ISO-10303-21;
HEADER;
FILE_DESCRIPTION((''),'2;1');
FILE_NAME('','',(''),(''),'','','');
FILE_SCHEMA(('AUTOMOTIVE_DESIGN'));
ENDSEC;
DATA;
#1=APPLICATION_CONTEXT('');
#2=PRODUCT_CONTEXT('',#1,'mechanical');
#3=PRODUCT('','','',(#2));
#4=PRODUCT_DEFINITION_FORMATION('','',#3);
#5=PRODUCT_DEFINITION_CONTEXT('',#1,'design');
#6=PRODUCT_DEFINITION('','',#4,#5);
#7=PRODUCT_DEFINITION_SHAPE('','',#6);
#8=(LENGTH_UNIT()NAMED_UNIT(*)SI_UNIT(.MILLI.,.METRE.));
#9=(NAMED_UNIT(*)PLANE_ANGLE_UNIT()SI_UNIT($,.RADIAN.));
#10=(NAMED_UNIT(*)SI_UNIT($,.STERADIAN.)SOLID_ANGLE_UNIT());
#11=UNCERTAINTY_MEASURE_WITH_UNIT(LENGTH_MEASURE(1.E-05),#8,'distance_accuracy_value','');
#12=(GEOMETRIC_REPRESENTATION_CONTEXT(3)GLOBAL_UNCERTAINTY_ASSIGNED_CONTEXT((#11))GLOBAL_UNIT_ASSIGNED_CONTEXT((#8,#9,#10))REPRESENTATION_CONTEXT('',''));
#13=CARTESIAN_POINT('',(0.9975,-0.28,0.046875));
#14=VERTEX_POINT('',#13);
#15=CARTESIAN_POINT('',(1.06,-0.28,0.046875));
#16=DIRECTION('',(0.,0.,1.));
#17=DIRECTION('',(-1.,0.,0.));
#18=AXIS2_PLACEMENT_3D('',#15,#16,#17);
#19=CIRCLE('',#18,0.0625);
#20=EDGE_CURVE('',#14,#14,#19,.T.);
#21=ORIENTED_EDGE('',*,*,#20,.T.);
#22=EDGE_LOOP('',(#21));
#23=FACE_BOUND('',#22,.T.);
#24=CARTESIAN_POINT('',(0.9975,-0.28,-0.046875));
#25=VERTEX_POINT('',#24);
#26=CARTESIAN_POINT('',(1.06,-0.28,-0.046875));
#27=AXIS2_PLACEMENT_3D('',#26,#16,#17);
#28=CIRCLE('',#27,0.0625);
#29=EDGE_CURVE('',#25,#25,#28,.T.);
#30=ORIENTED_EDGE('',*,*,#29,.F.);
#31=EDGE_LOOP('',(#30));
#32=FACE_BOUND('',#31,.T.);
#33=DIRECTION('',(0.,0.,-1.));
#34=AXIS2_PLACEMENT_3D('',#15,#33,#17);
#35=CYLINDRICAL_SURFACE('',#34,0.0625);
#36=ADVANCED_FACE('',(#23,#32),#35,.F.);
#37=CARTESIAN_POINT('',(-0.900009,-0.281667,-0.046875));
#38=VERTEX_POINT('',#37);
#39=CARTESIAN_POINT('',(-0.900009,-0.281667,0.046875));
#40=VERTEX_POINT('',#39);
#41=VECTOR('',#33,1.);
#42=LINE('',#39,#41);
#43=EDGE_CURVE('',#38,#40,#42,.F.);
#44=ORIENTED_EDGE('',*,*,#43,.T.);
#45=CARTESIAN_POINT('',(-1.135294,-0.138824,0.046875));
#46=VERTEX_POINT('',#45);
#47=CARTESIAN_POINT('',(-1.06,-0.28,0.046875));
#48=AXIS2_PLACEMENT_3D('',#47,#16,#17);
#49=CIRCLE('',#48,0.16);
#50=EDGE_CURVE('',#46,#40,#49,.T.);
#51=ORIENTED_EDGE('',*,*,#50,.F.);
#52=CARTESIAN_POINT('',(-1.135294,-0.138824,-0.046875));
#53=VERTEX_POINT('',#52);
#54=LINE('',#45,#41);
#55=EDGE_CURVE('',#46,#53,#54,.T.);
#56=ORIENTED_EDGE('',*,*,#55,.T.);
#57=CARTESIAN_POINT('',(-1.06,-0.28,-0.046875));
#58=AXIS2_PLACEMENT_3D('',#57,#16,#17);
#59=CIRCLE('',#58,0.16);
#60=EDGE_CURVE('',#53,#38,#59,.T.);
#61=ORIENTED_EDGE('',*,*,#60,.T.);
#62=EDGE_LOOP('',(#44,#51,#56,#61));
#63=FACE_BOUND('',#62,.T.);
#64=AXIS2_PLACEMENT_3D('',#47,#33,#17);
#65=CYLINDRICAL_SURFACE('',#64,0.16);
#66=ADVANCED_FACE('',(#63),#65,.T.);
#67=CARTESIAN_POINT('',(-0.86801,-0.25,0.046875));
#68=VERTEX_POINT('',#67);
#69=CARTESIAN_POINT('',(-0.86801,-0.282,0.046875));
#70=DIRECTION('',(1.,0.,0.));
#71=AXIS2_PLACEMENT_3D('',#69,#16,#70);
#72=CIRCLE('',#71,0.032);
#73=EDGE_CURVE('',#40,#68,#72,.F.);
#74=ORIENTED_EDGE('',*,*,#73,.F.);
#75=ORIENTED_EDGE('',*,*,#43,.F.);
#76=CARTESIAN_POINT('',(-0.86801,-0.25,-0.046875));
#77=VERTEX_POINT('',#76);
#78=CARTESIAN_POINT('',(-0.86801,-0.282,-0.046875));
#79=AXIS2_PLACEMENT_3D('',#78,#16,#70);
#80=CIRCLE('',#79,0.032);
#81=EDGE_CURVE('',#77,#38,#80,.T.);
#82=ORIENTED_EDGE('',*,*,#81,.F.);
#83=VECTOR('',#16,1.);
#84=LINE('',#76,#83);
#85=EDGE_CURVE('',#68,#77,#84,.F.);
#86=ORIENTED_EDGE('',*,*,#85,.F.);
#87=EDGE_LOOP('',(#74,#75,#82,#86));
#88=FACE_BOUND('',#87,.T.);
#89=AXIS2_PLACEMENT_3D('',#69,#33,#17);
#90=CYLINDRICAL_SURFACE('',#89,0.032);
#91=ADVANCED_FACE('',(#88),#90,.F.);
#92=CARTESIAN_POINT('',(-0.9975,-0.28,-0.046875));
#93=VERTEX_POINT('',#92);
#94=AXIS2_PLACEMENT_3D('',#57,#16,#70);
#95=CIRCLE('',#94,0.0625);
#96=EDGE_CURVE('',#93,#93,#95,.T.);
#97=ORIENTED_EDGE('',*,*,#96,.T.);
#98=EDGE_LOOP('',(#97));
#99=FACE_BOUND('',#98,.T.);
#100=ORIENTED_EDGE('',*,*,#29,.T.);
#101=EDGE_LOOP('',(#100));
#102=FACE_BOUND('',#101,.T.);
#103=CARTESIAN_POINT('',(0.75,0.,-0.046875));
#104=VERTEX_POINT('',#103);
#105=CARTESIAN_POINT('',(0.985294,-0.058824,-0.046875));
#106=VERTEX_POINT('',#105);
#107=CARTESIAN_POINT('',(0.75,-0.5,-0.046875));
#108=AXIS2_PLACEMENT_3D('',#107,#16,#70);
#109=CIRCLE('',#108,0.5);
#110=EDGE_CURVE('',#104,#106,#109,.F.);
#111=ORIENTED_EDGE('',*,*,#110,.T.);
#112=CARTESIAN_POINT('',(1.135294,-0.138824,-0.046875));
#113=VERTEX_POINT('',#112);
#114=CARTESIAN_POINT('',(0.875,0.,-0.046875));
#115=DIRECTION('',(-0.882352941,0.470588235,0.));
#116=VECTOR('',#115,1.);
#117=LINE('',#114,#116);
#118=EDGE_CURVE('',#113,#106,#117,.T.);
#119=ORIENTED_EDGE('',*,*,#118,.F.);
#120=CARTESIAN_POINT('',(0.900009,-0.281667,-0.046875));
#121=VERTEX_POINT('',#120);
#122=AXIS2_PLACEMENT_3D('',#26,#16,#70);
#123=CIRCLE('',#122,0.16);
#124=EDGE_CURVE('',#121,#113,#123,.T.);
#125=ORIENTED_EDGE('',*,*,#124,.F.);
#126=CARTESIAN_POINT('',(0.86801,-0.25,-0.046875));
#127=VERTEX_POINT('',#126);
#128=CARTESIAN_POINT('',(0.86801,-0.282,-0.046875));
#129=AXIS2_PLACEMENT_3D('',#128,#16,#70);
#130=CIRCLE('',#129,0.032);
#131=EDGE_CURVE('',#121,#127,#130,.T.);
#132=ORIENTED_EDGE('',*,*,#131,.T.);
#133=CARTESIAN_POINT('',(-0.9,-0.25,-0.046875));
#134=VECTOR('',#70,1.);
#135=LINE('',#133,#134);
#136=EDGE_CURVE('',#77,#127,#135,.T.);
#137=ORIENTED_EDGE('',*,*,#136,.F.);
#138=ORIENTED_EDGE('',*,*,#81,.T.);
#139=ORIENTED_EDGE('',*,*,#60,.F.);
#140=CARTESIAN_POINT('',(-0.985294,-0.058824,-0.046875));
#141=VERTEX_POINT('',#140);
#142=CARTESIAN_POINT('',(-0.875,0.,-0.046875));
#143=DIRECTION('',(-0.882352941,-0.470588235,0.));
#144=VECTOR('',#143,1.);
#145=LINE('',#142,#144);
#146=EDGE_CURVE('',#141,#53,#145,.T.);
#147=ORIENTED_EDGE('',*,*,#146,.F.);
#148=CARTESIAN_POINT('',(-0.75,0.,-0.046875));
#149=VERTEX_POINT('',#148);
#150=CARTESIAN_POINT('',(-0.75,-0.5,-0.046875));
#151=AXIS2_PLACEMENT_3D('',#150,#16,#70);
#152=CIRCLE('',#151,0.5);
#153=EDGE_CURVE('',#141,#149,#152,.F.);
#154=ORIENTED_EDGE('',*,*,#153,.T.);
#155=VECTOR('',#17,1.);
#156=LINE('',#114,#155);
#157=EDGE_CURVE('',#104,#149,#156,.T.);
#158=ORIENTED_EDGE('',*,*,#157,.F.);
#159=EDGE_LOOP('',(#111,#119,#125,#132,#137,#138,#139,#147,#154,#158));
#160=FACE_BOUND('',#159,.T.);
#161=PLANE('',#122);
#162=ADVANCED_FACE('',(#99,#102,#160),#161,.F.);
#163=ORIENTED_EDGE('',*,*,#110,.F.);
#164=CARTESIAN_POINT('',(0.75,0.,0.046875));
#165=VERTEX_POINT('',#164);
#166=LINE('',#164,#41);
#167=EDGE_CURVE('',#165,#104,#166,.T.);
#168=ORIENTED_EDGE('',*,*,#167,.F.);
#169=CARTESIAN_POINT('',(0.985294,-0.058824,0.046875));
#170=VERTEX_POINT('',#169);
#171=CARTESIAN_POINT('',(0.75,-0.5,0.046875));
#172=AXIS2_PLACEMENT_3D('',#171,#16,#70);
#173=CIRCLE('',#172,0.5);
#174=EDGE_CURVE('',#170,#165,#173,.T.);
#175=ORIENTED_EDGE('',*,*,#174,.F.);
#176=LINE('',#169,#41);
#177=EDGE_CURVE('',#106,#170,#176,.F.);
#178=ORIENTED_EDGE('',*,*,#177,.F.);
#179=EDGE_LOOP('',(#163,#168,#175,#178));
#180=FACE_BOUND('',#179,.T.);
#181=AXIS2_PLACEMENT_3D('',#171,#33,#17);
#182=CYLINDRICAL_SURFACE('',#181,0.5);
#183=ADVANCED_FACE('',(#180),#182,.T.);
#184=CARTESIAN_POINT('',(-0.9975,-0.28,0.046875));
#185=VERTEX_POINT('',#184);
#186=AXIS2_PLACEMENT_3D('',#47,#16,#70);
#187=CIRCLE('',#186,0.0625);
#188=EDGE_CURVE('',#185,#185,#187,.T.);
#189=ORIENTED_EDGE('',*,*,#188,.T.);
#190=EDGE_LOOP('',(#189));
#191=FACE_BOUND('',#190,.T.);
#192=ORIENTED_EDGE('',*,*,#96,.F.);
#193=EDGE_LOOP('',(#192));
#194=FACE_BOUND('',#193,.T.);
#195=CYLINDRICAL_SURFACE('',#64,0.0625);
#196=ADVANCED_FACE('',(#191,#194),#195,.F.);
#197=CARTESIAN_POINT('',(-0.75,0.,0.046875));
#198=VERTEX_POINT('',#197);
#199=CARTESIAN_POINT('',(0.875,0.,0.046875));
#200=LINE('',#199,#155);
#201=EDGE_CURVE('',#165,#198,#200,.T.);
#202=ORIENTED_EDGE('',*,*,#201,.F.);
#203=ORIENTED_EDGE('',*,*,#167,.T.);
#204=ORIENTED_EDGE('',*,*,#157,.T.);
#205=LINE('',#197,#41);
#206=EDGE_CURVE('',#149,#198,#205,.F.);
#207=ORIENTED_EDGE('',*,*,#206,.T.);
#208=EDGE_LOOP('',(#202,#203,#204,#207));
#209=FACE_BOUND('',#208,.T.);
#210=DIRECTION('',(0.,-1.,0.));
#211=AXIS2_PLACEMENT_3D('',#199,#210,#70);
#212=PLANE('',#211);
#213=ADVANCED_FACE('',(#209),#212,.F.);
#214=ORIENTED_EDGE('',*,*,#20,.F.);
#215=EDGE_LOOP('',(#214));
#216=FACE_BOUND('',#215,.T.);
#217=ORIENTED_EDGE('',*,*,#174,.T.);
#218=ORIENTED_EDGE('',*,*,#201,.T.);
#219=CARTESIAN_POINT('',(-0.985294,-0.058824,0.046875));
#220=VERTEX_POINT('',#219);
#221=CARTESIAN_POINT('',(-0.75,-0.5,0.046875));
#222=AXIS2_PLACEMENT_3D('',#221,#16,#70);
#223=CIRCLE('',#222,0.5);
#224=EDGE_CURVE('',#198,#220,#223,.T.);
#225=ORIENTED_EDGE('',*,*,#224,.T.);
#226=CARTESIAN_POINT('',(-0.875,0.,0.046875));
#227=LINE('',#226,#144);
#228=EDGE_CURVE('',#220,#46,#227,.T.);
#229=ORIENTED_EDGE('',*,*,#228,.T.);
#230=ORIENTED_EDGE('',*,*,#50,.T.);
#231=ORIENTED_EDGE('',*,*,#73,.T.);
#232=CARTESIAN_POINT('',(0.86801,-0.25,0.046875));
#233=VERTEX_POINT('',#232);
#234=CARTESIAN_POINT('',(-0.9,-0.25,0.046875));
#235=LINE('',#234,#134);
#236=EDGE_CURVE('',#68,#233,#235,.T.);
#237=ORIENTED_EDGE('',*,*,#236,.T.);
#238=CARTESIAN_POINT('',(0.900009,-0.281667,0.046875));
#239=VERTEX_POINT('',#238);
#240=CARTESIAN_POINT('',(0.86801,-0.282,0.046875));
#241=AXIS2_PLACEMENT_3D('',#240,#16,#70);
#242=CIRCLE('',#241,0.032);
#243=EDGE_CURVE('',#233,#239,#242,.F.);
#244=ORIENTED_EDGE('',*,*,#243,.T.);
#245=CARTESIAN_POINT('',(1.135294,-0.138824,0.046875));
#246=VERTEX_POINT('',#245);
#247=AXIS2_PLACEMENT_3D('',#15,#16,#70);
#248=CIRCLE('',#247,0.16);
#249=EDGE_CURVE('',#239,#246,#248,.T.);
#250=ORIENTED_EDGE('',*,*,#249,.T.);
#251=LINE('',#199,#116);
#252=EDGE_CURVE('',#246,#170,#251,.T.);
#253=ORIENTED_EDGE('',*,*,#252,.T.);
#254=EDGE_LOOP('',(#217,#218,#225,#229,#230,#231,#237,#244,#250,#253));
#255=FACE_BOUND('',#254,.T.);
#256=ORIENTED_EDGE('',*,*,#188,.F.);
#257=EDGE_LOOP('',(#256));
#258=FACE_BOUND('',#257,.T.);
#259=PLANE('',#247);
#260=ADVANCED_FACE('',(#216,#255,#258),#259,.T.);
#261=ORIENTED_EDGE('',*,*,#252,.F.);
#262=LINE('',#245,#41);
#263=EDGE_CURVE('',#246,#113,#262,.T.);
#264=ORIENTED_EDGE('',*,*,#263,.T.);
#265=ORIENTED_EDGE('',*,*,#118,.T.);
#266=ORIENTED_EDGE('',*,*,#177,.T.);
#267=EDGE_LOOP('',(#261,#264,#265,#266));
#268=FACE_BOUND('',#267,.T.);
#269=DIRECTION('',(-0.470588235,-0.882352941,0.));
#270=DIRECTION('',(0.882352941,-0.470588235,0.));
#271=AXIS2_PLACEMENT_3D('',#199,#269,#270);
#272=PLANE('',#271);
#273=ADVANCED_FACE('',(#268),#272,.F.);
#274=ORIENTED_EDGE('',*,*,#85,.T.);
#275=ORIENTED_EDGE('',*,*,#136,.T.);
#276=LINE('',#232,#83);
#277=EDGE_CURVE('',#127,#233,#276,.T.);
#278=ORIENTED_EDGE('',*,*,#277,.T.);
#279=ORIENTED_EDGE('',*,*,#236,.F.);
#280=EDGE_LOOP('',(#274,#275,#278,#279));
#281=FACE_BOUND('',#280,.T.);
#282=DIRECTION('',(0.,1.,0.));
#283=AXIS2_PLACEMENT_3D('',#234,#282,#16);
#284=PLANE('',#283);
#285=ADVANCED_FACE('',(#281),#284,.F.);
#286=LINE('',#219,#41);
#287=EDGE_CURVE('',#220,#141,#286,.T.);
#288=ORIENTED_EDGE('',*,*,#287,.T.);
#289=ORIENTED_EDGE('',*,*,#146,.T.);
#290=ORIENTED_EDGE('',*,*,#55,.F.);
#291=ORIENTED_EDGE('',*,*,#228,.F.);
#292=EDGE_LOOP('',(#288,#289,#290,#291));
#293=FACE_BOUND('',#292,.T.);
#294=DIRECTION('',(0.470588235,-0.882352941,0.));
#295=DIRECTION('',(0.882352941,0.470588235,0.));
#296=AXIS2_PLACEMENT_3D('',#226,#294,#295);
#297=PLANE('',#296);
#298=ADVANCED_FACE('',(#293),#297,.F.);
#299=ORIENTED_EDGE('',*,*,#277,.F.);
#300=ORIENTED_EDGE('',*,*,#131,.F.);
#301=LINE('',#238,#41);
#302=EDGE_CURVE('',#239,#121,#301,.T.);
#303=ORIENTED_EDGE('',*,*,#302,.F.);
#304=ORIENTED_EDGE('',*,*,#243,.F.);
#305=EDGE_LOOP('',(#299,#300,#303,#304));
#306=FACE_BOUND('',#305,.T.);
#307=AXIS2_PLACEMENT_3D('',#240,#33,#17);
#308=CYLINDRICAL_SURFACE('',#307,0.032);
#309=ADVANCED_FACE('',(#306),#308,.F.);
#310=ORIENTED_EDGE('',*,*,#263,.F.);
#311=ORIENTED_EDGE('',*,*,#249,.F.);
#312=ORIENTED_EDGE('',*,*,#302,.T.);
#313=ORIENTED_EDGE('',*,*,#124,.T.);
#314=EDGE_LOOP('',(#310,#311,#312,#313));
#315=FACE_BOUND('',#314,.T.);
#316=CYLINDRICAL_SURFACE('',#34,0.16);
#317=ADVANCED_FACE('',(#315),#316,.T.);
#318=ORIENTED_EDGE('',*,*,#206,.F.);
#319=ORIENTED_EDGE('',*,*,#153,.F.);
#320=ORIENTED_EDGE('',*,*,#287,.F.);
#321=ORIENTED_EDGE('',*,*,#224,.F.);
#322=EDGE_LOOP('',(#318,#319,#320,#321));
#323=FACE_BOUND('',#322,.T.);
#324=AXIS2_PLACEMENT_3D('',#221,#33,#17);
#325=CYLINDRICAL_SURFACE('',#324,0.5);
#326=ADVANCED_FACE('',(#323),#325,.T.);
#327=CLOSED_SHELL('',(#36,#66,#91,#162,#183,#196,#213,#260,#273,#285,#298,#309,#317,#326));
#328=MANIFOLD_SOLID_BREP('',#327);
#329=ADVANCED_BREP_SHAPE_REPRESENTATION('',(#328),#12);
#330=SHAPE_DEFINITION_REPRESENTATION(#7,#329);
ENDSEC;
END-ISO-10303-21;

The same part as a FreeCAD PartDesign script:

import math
import FreeCAD as App
import Part
import Sketcher
Q = App.Units.Quantity


def edges_at(feature, points):
    """Names of the edges that pass closest to the given points."""
    edges = feature.Shape.Edges
    near = lambda p: min(range(len(edges)), key=lambda i: edges[i].distToShape(Part.Vertex(*p))[0])
    return sorted({f"Edge{near(p) + 1}" for p in points})

doc = App.newDocument("Part")
body = doc.addObject("PartDesign::Body", "Body")

# Sketch on XY plane
sketch1 = body.newObject("Sketcher::SketchObject", "Sketch")
sketch1.AttachmentSupport = (doc.getObject("XY_Plane"), [""])
sketch1.MapMode = "FlatFace"
sketch1.addGeometry([
    Part.LineSegment(App.Vector(0.875, 0, 0), App.Vector(-0.875, 0, 0)),  # 0
    Part.LineSegment(App.Vector(-0.875, 0, 0), App.Vector(-1.135294, -0.138824, 0)),  # 1
    Part.ArcOfCircle(Part.Circle(App.Vector(-1.06, -0.28, 0), App.Vector(0, 0, 1), 0.16), math.radians(118.072487), math.radians(360)),  # 2
    Part.LineSegment(App.Vector(-0.9, -0.28, 0), App.Vector(-0.9, -0.25, 0)),  # 3
    Part.LineSegment(App.Vector(-0.9, -0.25, 0), App.Vector(0.9, -0.25, 0)),  # 4
    Part.LineSegment(App.Vector(0.9, -0.25, 0), App.Vector(0.9, -0.28, 0)),  # 5
    Part.ArcOfCircle(Part.Circle(App.Vector(1.06, -0.28, 0), App.Vector(0, 0, 1), 0.16), math.radians(180), math.radians(421.927513)),  # 6
    Part.LineSegment(App.Vector(1.135294, -0.138824, 0), App.Vector(0.875, 0, 0)),  # 7
    Part.Circle(App.Vector(-1.06, -0.28, 0), App.Vector(0, 0, 1), 0.0625),  # 8
    Part.Circle(App.Vector(1.06, -0.28, 0), App.Vector(0, 0, 1), 0.0625),  # 9
], False)
sketch1.addConstraint([
    Sketcher.Constraint("Coincident", 0, 2, 1, 1),
    Sketcher.Constraint("Tangent", 1, 2, 2, 1),
    Sketcher.Constraint("Tangent", 2, 2, 3, 1),
    Sketcher.Constraint("Coincident", 3, 2, 4, 1),
    Sketcher.Constraint("Coincident", 4, 2, 5, 1),
    Sketcher.Constraint("Tangent", 5, 2, 6, 1),
    Sketcher.Constraint("Tangent", 6, 2, 7, 1),
    Sketcher.Constraint("Coincident", 7, 2, 0, 1),
    Sketcher.Constraint("Horizontal", 0),
    Sketcher.Constraint("Vertical", 3),
    Sketcher.Constraint("Horizontal", 4),
    Sketcher.Constraint("Vertical", 5),
    Sketcher.Constraint("Coincident", 8, 3, 2, 3),
    Sketcher.Constraint("Coincident", 9, 3, 6, 3),
    Sketcher.Constraint("Equal", 2, 6),
    Sketcher.Constraint("Equal", 8, 9),
    Sketcher.Constraint("Symmetric", 0, 2, 7, 2, -1, 1),
    Sketcher.Constraint("Symmetric", 2, 3, 6, 3, -2),
    Sketcher.Constraint("Radius", 2, Q("0.16 mm")),
    Sketcher.Constraint("Diameter", 8, Q("0.125 mm")),
    Sketcher.Constraint("DistanceX", 4, 1, 4, 2, Q("1.8 mm")),
    Sketcher.Constraint("DistanceX", 0, 2, 0, 1, Q("1.75 mm")),
    Sketcher.Constraint("DistanceY", 3, 1, 3, 2, Q("0.03 mm")),
    Sketcher.Constraint("DistanceY", 2, 3, -1, 1, Q("0.28 mm")),
])
pad1 = body.newObject("PartDesign::Pad", "Pad")
pad1.Profile = sketch1
pad1.Length = 0.09375
pad1.Midplane = True
doc.recompute()

fillet = body.newObject("PartDesign::Fillet", "Fillet")
fillet.Base = (pad1, edges_at(pad1, [(-0.875, 0, 0), (0.875, 0, 0)]))
fillet.Radius = 0.5
doc.recompute()

fillet2 = body.newObject("PartDesign::Fillet", "Fillet001")
fillet2.Base = (fillet, edges_at(fillet, [(0.9, -0.25, 0), (-0.9, -0.25, 0)]))
fillet2.Radius = 0.032

doc.recompute()
